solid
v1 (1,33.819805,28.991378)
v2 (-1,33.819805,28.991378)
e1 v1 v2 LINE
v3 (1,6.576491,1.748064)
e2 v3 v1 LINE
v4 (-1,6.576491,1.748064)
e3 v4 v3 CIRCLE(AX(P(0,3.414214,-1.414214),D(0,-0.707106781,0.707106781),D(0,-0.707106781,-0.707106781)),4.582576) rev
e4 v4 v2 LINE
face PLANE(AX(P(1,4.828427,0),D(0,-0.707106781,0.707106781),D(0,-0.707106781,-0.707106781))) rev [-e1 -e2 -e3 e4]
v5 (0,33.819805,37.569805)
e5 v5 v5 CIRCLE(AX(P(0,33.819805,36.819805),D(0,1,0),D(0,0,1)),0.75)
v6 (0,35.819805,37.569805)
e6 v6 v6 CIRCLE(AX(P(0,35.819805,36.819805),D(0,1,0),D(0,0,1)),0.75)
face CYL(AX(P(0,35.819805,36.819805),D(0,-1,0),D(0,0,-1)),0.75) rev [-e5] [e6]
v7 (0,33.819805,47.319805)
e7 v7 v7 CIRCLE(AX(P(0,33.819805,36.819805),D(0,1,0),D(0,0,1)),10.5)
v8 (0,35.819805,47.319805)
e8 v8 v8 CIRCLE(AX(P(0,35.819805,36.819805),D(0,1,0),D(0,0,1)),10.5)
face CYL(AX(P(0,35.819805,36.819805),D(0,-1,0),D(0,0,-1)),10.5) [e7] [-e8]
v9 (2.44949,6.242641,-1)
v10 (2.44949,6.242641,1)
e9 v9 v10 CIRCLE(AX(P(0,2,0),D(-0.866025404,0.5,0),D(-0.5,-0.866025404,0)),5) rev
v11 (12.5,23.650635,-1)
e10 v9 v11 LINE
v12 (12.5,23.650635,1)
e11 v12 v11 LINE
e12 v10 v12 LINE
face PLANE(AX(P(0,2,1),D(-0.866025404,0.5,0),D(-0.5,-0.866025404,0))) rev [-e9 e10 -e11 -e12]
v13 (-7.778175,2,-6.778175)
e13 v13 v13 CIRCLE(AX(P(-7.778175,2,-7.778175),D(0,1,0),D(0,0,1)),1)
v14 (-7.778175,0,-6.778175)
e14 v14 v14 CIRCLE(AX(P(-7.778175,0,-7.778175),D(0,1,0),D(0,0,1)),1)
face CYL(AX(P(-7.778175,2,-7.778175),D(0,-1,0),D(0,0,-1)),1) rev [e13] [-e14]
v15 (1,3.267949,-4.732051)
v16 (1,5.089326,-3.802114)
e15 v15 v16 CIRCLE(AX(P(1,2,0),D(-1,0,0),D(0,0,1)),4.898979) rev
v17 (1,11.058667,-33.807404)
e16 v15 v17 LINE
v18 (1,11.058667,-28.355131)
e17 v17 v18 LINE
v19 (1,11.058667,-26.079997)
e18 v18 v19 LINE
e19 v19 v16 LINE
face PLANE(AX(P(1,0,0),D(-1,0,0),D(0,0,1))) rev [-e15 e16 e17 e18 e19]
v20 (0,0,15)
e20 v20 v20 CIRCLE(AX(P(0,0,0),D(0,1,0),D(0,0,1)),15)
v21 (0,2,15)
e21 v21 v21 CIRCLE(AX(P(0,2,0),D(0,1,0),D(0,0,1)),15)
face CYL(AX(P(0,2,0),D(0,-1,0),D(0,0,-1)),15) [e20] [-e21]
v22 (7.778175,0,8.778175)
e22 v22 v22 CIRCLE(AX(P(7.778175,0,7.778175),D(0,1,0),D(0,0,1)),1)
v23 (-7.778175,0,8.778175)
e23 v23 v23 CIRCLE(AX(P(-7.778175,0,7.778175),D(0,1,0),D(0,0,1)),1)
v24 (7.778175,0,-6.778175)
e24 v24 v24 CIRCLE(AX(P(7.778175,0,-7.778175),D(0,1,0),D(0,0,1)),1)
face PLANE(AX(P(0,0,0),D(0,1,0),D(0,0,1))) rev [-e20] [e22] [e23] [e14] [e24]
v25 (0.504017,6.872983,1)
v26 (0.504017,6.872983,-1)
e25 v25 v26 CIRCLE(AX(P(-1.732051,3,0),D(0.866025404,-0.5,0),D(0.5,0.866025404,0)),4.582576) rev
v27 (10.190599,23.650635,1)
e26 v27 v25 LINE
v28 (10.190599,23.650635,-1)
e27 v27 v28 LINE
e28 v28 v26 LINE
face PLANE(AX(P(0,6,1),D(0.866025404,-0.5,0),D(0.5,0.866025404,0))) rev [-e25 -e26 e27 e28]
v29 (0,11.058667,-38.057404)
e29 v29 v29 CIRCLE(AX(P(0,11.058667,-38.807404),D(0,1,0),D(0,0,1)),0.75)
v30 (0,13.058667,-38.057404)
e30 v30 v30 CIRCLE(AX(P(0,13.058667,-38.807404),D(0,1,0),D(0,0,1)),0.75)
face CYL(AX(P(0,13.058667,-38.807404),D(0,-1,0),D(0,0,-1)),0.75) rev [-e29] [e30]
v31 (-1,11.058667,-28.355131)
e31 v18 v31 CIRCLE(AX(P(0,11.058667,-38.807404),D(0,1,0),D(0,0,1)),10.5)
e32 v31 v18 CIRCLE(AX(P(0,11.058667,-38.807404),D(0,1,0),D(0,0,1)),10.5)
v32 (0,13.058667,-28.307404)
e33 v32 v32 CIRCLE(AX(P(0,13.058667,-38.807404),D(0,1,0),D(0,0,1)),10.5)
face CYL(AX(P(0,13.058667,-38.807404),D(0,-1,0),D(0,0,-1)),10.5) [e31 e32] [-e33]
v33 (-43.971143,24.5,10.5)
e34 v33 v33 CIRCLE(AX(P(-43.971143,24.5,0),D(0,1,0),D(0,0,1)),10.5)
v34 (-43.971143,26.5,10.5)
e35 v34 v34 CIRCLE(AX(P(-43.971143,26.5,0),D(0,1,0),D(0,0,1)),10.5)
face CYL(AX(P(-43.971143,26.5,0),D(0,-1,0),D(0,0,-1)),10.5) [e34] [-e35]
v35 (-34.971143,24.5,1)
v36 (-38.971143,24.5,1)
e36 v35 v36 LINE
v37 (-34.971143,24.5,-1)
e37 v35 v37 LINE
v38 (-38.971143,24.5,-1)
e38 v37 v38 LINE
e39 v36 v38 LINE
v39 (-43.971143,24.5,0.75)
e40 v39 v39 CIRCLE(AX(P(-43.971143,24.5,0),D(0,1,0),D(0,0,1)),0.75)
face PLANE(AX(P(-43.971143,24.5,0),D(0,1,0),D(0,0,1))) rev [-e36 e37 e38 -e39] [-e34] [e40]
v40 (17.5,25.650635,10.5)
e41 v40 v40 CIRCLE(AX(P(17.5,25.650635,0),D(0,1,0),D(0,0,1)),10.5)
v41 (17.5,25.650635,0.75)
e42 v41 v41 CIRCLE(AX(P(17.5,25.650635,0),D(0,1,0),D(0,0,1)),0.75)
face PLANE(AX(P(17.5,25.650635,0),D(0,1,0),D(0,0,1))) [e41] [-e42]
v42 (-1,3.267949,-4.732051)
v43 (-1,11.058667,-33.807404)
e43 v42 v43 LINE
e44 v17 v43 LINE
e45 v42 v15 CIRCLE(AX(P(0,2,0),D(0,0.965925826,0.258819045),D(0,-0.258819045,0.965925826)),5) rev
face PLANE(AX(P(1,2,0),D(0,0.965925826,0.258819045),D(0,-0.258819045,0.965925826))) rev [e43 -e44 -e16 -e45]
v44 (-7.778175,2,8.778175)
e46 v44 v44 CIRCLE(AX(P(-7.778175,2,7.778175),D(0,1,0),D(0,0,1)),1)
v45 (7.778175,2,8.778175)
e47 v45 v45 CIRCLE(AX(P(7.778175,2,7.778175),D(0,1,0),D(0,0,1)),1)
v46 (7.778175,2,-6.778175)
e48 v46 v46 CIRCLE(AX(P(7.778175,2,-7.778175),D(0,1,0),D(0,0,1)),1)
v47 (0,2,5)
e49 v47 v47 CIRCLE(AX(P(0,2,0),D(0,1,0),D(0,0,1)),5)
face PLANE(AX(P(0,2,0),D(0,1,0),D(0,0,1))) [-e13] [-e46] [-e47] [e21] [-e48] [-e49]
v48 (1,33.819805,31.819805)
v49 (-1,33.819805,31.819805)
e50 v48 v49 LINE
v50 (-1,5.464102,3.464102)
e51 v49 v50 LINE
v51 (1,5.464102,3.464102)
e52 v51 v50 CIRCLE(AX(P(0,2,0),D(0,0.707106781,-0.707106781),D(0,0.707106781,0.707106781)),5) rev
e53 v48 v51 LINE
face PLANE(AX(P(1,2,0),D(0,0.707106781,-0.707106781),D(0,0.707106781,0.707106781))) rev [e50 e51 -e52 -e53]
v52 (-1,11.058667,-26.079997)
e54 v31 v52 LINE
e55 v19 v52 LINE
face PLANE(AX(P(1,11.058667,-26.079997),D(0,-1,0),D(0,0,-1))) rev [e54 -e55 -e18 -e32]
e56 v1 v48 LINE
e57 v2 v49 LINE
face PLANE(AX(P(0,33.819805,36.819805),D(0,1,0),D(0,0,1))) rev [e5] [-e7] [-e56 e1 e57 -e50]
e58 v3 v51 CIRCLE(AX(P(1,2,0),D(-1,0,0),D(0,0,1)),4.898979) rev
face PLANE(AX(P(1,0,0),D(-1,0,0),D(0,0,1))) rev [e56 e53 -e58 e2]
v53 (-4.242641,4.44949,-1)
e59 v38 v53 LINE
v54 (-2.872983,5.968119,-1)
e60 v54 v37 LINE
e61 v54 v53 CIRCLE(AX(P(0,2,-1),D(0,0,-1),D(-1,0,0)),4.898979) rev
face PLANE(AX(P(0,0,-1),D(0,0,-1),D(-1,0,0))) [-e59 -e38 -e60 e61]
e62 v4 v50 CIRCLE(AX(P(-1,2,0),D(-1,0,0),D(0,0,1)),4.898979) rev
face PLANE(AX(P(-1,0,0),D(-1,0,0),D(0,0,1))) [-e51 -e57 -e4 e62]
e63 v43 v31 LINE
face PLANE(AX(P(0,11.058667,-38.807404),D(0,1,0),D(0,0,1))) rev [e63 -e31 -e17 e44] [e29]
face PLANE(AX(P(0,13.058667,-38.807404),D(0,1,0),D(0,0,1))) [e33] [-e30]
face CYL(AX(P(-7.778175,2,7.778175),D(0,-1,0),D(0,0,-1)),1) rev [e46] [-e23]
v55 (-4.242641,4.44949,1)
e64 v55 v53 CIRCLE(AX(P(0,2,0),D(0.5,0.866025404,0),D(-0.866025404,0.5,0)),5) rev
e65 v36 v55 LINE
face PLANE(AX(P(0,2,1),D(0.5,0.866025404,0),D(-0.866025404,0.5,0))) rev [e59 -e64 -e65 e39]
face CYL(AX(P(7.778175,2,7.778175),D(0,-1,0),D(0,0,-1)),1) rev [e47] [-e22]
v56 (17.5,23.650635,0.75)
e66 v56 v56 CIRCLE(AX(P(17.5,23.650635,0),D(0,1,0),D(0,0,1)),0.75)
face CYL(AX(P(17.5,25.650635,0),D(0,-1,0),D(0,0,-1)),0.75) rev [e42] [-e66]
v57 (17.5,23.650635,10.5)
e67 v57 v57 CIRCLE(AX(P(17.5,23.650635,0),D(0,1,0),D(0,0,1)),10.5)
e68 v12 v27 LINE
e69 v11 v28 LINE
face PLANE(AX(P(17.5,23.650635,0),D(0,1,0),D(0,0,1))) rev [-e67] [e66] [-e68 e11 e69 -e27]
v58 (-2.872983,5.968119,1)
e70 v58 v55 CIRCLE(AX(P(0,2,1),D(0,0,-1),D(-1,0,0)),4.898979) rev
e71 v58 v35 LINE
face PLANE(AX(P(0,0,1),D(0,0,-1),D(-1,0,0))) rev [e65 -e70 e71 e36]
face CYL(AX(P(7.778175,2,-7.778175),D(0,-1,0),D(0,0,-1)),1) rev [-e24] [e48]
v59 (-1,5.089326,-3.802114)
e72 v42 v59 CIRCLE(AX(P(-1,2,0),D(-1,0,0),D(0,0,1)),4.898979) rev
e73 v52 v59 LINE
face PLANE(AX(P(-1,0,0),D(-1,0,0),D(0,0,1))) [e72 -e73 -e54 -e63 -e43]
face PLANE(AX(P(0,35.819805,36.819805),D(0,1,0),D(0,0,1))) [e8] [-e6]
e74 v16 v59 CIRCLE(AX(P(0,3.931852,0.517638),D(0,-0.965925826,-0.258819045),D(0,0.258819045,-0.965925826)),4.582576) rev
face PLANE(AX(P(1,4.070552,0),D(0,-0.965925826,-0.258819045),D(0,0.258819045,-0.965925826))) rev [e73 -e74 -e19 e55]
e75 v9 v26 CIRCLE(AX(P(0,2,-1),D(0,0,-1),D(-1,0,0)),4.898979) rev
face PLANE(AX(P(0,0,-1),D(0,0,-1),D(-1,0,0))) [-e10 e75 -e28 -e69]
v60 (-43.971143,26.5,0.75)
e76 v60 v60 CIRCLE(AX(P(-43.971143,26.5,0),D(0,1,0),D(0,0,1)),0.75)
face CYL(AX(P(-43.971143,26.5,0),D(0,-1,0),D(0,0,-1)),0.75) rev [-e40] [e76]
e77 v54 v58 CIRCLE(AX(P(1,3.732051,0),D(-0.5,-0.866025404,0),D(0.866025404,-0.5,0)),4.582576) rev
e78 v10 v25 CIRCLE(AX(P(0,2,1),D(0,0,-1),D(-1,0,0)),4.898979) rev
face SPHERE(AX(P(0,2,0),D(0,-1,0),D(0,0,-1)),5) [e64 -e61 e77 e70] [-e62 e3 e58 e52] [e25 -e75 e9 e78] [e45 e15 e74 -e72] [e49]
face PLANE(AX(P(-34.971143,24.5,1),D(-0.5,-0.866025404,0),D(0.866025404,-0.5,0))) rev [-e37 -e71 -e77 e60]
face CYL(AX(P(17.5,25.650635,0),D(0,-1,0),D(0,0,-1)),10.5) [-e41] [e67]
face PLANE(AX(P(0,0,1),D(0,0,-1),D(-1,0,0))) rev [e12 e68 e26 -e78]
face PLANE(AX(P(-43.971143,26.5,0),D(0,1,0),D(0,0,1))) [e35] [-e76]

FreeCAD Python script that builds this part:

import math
import FreeCAD as App
import Part
import Sketcher
Q = App.Units.Quantity

doc = App.newDocument("Part")
body = doc.addObject("PartDesign::Body", "Body")

# Sketch on XZ plane
sketch1 = body.newObject("Sketcher::SketchObject", "Sketch")
sketch1.AttachmentSupport = (doc.getObject("XZ_Plane"), [""])
sketch1.MapMode = "FlatFace"
sketch1.addGeometry(Part.Circle(App.Vector(0, 0, 0), App.Vector(0, 0, 1), 15), False)
sketch1.addGeometry(Part.Circle(App.Vector(-7.8, -7.8, 0), App.Vector(0, 0, 1), 1), False)
sketch1.addGeometry(Part.Circle(App.Vector(-7.8, 7.8, 0), App.Vector(0, 0, 1), 1), False)
sketch1.addGeometry(Part.Circle(App.Vector(7.8, -7.8, 0), App.Vector(0, 0, 1), 1), False)
sketch1.addGeometry(Part.Circle(App.Vector(7.8, 7.8, 0), App.Vector(0, 0, 1), 1), False)
sketch1.addConstraint(Sketcher.Constraint("Coincident", 0, 3, -1, 1))
sketch1.addConstraint(Sketcher.Constraint("Equal", 1, 2))
sketch1.addConstraint(Sketcher.Constraint("Equal", 2, 3))
sketch1.addConstraint(Sketcher.Constraint("Equal", 3, 4))
sketch1.addConstraint(Sketcher.Constraint("Symmetric", 2, 3, 3, 3, -1, 1))
sketch1.addConstraint(Sketcher.Constraint("Symmetric", 1, 3, 4, 3, -1, 1))
sketch1.addConstraint(Sketcher.Constraint("Symmetric", 1, 3, 3, 3, -2))
sketch1.addConstraint(Sketcher.Constraint("Diameter", 0, 30.0))
sketch1.addConstraint(Sketcher.Constraint("Diameter", 1, 2.0))
sketch1.addConstraint(Sketcher.Constraint("DistanceY", 1, 3, 2, 3, 15.556349))
sketch1.addConstraint(Sketcher.Constraint("DistanceX", 1, 3, 3, 3, 15.556349))
pad1 = body.newObject("PartDesign::Pad", "Pad")
pad1.Profile = sketch1
pad1.Length = 2
pad1.Reversed = True

# Sketch on YZ plane
sketch2 = body.newObject("Sketcher::SketchObject", "Sketch001")
sketch2.AttachmentSupport = (doc.getObject("YZ_Plane"), [""])
sketch2.MapMode = "FlatFace"
sketch2.addGeometry(Part.LineSegment(App.Vector(7, 0, 0), App.Vector(2, 0, 0)), False)
sketch2.addGeometry(Part.LineSegment(App.Vector(2, 0, 0), App.Vector(2, -5, 0)), False)
sketch2.addGeometry(Part.ArcOfCircle(Part.Circle(App.Vector(2, 0, 0), App.Vector(0, 0, 1), 5), math.radians(-90), math.radians(0)), False)
sketch2.addConstraint(Sketcher.Constraint("Coincident", 0, 2, 1, 1))
sketch2.addConstraint(Sketcher.Constraint("Coincident", 1, 2, 2, 1))
sketch2.addConstraint(Sketcher.Constraint("Coincident", 2, 2, 0, 1))
sketch2.addConstraint(Sketcher.Constraint("Horizontal", 0))
sketch2.addConstraint(Sketcher.Constraint("Vertical", 1))
sketch2.addConstraint(Sketcher.Constraint("Coincident", 0, 2, 2, 3))
sketch2.addConstraint(Sketcher.Constraint("PointOnObject", 2, 3, -1))
sketch2.addConstraint(Sketcher.Constraint("Radius", 2, 5.0))
sketch2.addConstraint(Sketcher.Constraint("DistanceX", -1, 1, 2, 3, 2.0))
revolution = body.newObject("PartDesign::Revolution", "Revolution")
revolution.Profile = sketch2
revolution.ReferenceAxis = (sketch2, ["H_Axis"])
revolution.Angle = 360

# Sketch on XY plane
sketch3 = body.newObject("Sketcher::SketchObject", "Sketch002")
sketch3.AttachmentSupport = (doc.getObject("XY_Plane"), [""])
sketch3.MapMode = "FlatFace"
sketch3.addGeometry(Part.LineSegment(App.Vector(0, 2, 0), App.Vector(12.5, 23.7, 0)), False)
sketch3.addGeometry(Part.LineSegment(App.Vector(12.5, 23.7, 0), App.Vector(10.2, 23.7, 0)), False)
sketch3.addGeometry(Part.LineSegment(App.Vector(10.2, 23.7, 0), App.Vector(0, 6, 0)), False)
sketch3.addGeometry(Part.LineSegment(App.Vector(0, 6, 0), App.Vector(0, 4.3, 0)), False)
sketch3.addGeometry(Part.LineSegment(App.Vector(0, 4.3, 0), App.Vector(-35, 24.5, 0)), False)
sketch3.addGeometry(Part.LineSegment(App.Vector(-35, 24.5, 0), App.Vector(-39, 24.5, 0)), False)
sketch3.addGeometry(Part.LineSegment(App.Vector(-39, 24.5, 0), App.Vector(0, 2, 0)), False)
sketch3.addConstraint(Sketcher.Constraint("Coincident", 0, 2, 1, 1))
sketch3.addConstraint(Sketcher.Constraint("Coincident", 1, 2, 2, 1))
sketch3.addConstraint(Sketcher.Constraint("Coincident", 2, 2, 3, 1))
sketch3.addConstraint(Sketcher.Constraint("Coincident", 3, 2, 4, 1))
sketch3.addConstraint(Sketcher.Constraint("Coincident", 4, 2, 5, 1))
sketch3.addConstraint(Sketcher.Constraint("Coincident", 5, 2, 6, 1))
sketch3.addConstraint(Sketcher.Constraint("Coincident", 6, 2, 0, 1))
sketch3.addConstraint(Sketcher.Constraint("Horizontal", 1))
sketch3.addConstraint(Sketcher.Constraint("Vertical", 3))
sketch3.addConstraint(Sketcher.Constraint("Horizontal", 5))
sketch3.addConstraint(Sketcher.Constraint("PointOnObject", 2, 2, -2))
sketch3.addConstraint(Sketcher.Constraint("PointOnObject", 6, 2, -2))
sketch3.addConstraint(Sketcher.Constraint("Parallel", 0, 2))
sketch3.addConstraint(Sketcher.Constraint("Perpendicular", 2, 4))
sketch3.addConstraint(Sketcher.Constraint("Parallel", 4, 6))
sketch3.addConstraint(Sketcher.Constraint("DistanceX", 5, 2, 5, 1, 4.0))
sketch3.addConstraint(Sketcher.Constraint("Angle", 0, Q("60 deg")))
sketch3.addConstraint(Sketcher.Constraint("Distance", 0, 25.0))
sketch3.addConstraint(Sketcher.Constraint("Distance", 6, 45.0))
sketch3.addConstraint(Sketcher.Constraint("DistanceY", -1, 1, 2, 2, 6.0))
sketch3.addConstraint(Sketcher.Constraint("DistanceY", -1, 1, 6, 2, 2.0))
pad2 = body.newObject("PartDesign::Pad", "Pad001")
pad2.Profile = sketch3
pad2.Length = 2
pad2.Midplane = True

# Sketch on XZ plane
sketch4 = body.newObject("Sketcher::SketchObject", "Sketch003")
sketch4.AttachmentSupport = (doc.getObject("XZ_Plane"), [""])
sketch4.MapMode = "FlatFace"
sketch4.AttachmentOffset = App.Placement(App.Vector(0, 0, -23.650635), App.Rotation())
sketch4.addGeometry(Part.Circle(App.Vector(17.5, 0, 0), App.Vector(0, 0, 1), 10.5), False)
sketch4.addGeometry(Part.Circle(App.Vector(17.5, 0, 0), App.Vector(0, 0, 1), 0.8), False)
sketch4.addConstraint(Sketcher.Constraint("Coincident", 1, 3, 0, 3))
sketch4.addConstraint(Sketcher.Constraint("PointOnObject", 0, 3, -1))
sketch4.addConstraint(Sketcher.Constraint("Diameter", 0, 21.0))
sketch4.addConstraint(Sketcher.Constraint("Diameter", 1, 1.5))
sketch4.addConstraint(Sketcher.Constraint("DistanceX", -1, 1, 0, 3, 17.5))
pad3 = body.newObject("PartDesign::Pad", "Pad002")
pad3.Profile = sketch4
pad3.Length = 2
pad3.Reversed = True

# Sketch on XZ plane
sketch5 = body.newObject("Sketcher::SketchObject", "Sketch004")
sketch5.AttachmentSupport = (doc.getObject("XZ_Plane"), [""])
sketch5.MapMode = "FlatFace"
sketch5.AttachmentOffset = App.Placement(App.Vector(0, 0, -24.5), App.Rotation())
sketch5.addGeometry(Part.Circle(App.Vector(-44, 0, 0), App.Vector(0, 0, 1), 10.5), False)
sketch5.addGeometry(Part.Circle(App.Vector(-44, 0, 0), App.Vector(0, 0, 1), 0.8), False)
sketch5.addConstraint(Sketcher.Constraint("Coincident", 1, 3, 0, 3))
sketch5.addConstraint(Sketcher.Constraint("PointOnObject", 0, 3, -1))
sketch5.addConstraint(Sketcher.Constraint("Diameter", 0, 21.0))
sketch5.addConstraint(Sketcher.Constraint("Diameter", 1, 1.5))
sketch5.addConstraint(Sketcher.Constraint("DistanceX", 0, 3, -1, 1, 43.971143))
pad4 = body.newObject("PartDesign::Pad", "Pad003")
pad4.Profile = sketch5
pad4.Length = 2
pad4.Reversed = True

# Sketch on YZ plane
sketch6 = body.newObject("Sketcher::SketchObject", "Sketch005")
sketch6.AttachmentSupport = (doc.getObject("YZ_Plane"), [""])
sketch6.MapMode = "FlatFace"
sketch6.addGeometry(Part.LineSegment(App.Vector(2, 0, 0), App.Vector(11.1, -33.8, 0)), False)
sketch6.addGeometry(Part.LineSegment(App.Vector(11.1, -33.8, 0), App.Vector(11.1, -26.1, 0)), False)
sketch6.addGeometry(Part.LineSegment(App.Vector(11.1, -26.1, 0), App.Vector(4.1, 0, 0)), False)
sketch6.addGeometry(Part.LineSegment(App.Vector(4.1, 0, 0), App.Vector(4.8, 0, 0)), False)
sketch6.addGeometry(Part.LineSegment(App.Vector(4.8, 0, 0), App.Vector(33.8, 29, 0)), False)
sketch6.addGeometry(Part.LineSegment(App.Vector(33.8, 29, 0), App.Vector(33.8, 31.8, 0)), False)
sketch6.addGeometry(Part.LineSegment(App.Vector(33.8, 31.8, 0), App.Vector(2, 0, 0)), False)
sketch6.addConstraint(Sketcher.Constraint("Coincident", 0, 2, 1, 1))
sketch6.addConstraint(Sketcher.Constraint("Coincident", 1, 2, 2, 1))
sketch6.addConstraint(Sketcher.Constraint("Coincident", 2, 2, 3, 1))
sketch6.addConstraint(Sketcher.Constraint("Coincident", 3, 2, 4, 1))
sketch6.addConstraint(Sketcher.Constraint("Coincident", 4, 2, 5, 1))
sketch6.addConstraint(Sketcher.Constraint("Coincident", 5, 2, 6, 1))
sketch6.addConstraint(Sketcher.Constraint("Coincident", 6, 2, 0, 1))
sketch6.addConstraint(Sketcher.Constraint("Vertical", 1))
sketch6.addConstraint(Sketcher.Constraint("Horizontal", 3))
sketch6.addConstraint(Sketcher.Constraint("Vertical", 5))
sketch6.addConstraint(Sketcher.Constraint("PointOnObject", 2, 2, -1))
sketch6.addConstraint(Sketcher.Constraint("PointOnObject", 6, 2, -1))
sketch6.addConstraint(Sketcher.Constraint("Parallel", 0, 2))
sketch6.addConstraint(Sketcher.Constraint("Parallel", 4, 6))
sketch6.addConstraint(Sketcher.Constraint("Angle", 0, Q("-75 deg")))
sketch6.addConstraint(Sketcher.Constraint("Angle", 4, Q("45 deg")))
sketch6.addConstraint(Sketcher.Constraint("Distance", 0, 35.0))
sketch6.addConstraint(Sketcher.Constraint("Distance", 2, 27.0))
sketch6.addConstraint(Sketcher.Constraint("Distance", 4, 41.0))
sketch6.addConstraint(Sketcher.Constraint("Distance", 6, 45.0))
sketch6.addConstraint(Sketcher.Constraint("DistanceX", -1, 1, 6, 2, 2.0))
pad5 = body.newObject("PartDesign::Pad", "Pad004")
pad5.Profile = sketch6
pad5.Length = 2
pad5.Midplane = True

# Sketch on XZ plane
sketch7 = body.newObject("Sketcher::SketchObject", "Sketch006")
sketch7.AttachmentSupport = (doc.getObject("XZ_Plane"), [""])
sketch7.MapMode = "FlatFace"
sketch7.AttachmentOffset = App.Placement(App.Vector(0, 0, -11.058667), App.Rotation())
sketch7.addGeometry(Part.Circle(App.Vector(0, -38.8, 0), App.Vector(0, 0, 1), 10.5), False)
sketch7.addGeometry(Part.Circle(App.Vector(0, -38.8, 0), App.Vector(0, 0, 1), 0.8), False)
sketch7.addConstraint(Sketcher.Constraint("Coincident", 1, 3, 0, 3))
sketch7.addConstraint(Sketcher.Constraint("PointOnObject", 0, 3, -2))
sketch7.addConstraint(Sketcher.Constraint("Diameter", 0, 21.0))
sketch7.addConstraint(Sketcher.Constraint("Diameter", 1, 1.5))
sketch7.addConstraint(Sketcher.Constraint("DistanceY", 0, 3, -1, 1, 38.807404))
pad6 = body.newObject("PartDesign::Pad", "Pad005")
pad6.Profile = sketch7
pad6.Length = 2
pad6.Reversed = True

# Sketch on XZ plane
sketch8 = body.newObject("Sketcher::SketchObject", "Sketch007")
sketch8.AttachmentSupport = (doc.getObject("XZ_Plane"), [""])
sketch8.MapMode = "FlatFace"
sketch8.AttachmentOffset = App.Placement(App.Vector(0, 0, -33.819805), App.Rotation())
sketch8.addGeometry(Part.Circle(App.Vector(0, 36.8, 0), App.Vector(0, 0, 1), 10.5), False)
sketch8.addGeometry(Part.Circle(App.Vector(0, 36.8, 0), App.Vector(0, 0, 1), 0.8), False)
sketch8.addConstraint(Sketcher.Constraint("Coincident", 1, 3, 0, 3))
sketch8.addConstraint(Sketcher.Constraint("PointOnObject", 0, 3, -2))
sketch8.addConstraint(Sketcher.Constraint("Diameter", 0, 21.0))
sketch8.addConstraint(Sketcher.Constraint("Diameter", 1, 1.5))
sketch8.addConstraint(Sketcher.Constraint("DistanceY", -1, 1, 0, 3, 36.819805))
pad7 = body.newObject("PartDesign::Pad", "Pad006")
pad7.Profile = sketch8
pad7.Length = 2
pad7.Reversed = True

doc.recompute()
